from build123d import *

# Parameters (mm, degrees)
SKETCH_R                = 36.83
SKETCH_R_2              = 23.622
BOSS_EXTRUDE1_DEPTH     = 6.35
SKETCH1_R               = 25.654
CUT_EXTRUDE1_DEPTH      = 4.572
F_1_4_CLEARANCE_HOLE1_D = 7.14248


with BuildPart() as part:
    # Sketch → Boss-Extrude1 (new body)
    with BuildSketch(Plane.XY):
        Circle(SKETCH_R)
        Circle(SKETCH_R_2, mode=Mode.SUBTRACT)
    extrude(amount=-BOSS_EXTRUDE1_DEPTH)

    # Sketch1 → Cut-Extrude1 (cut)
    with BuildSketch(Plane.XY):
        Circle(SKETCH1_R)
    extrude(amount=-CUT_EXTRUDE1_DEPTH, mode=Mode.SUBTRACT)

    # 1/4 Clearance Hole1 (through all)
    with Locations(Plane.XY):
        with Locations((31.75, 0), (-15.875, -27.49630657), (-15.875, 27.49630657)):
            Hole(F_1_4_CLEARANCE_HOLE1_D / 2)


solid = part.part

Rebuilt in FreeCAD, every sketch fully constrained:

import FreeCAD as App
import Part
import Sketcher

V = App.Vector
Q = App.Units.Quantity

doc = App.newDocument("Part")
body = doc.addObject("PartDesign::Body", "Body")

# Sketch on XY plane
sketch1 = body.newObject("Sketcher::SketchObject", "Sketch")
sketch1.AttachmentSupport = (doc.getObject("XY_Plane"), [""])
sketch1.MapMode = "FlatFace"
sketch1.addGeometry(Part.Circle(V(0, 0, 0), V(0, 0, 1), 37), False)
sketch1.addGeometry(Part.Circle(V(0, 0, 0), V(0, 0, 1), 24), False)
sketch1.addConstraint(Sketcher.Constraint("Coincident", 0, 3, -1, 1))
sketch1.addConstraint(Sketcher.Constraint("Coincident", 1, 3, -1, 1))
sketch1.addConstraint(Sketcher.Constraint("Diameter", 0, Q("2.9 in")))
sketch1.addConstraint(Sketcher.Constraint("Diameter", 1, Q("1.86 in")))
pad1 = body.newObject("PartDesign::Pad", "Pad")
pad1.Profile = sketch1
pad1.Length = Q("0.25 in")
pad1.Reversed = True

# Sketch on XY plane
sketch2 = body.newObject("Sketcher::SketchObject", "Sketch001")
sketch2.AttachmentSupport = (doc.getObject("XY_Plane"), [""])
sketch2.MapMode = "FlatFace"
sketch2.addGeometry(Part.Circle(V(0, 0, 0), V(0, 0, 1), 26), False)
sketch2.addConstraint(Sketcher.Constraint("Coincident", 0, 3, -1, 1))
sketch2.addConstraint(Sketcher.Constraint("Diameter", 0, Q("2.02 in")))
pocket1 = body.newObject("PartDesign::Pocket", "Pocket")
pocket1.Profile = sketch2
pocket1.Length = Q("0.18 in")

# Sketch on XY plane
sketch3 = body.newObject("Sketcher::SketchObject", "Sketch002")
sketch3.AttachmentSupport = (doc.getObject("XY_Plane"), [""])
sketch3.MapMode = "FlatFace"
sketch3.addGeometry(Part.Circle(V(31.8, 0, 0), V(0, 0, 1), 3.6), False)
sketch3.addGeometry(Part.Circle(V(-15.9, -27.5, 0), V(0, 0, 1), 3.6), False)
sketch3.addGeometry(Part.Circle(V(-15.9, 27.5, 0), V(0, 0, 1), 3.6), False)
sketch3.addConstraint(Sketcher.Constraint("Equal", 0, 1))
sketch3.addConstraint(Sketcher.Constraint("Equal", 1, 2))
sketch3.addConstraint(Sketcher.Constraint("Symmetric", 1, 3, 2, 3, -1))
sketch3.addConstraint(Sketcher.Constraint("PointOnObject", 0, 3, -1))
sketch3.addConstraint(Sketcher.Constraint("Diameter", 0, Q("0.2812 in")))
sketch3.addConstraint(Sketcher.Constraint("DistanceX", -1, 1, 0, 3, Q("1.25 in")))
sketch3.addConstraint(Sketcher.Constraint("DistanceX", 1, 3, -1, 1, Q("0.625 in")))
sketch3.addConstraint(Sketcher.Constraint("DistanceY", 1, 3, -1, 1, Q("27.496307 mm")))
doc.recompute()
hole = body.newObject("PartDesign::Hole", "Hole")
hole.Profile = sketch3
hole.ThreadType = "None"
hole.Diameter = Q("0.2812 in")
hole.DepthType = "ThroughAll"

doc.recompute()
